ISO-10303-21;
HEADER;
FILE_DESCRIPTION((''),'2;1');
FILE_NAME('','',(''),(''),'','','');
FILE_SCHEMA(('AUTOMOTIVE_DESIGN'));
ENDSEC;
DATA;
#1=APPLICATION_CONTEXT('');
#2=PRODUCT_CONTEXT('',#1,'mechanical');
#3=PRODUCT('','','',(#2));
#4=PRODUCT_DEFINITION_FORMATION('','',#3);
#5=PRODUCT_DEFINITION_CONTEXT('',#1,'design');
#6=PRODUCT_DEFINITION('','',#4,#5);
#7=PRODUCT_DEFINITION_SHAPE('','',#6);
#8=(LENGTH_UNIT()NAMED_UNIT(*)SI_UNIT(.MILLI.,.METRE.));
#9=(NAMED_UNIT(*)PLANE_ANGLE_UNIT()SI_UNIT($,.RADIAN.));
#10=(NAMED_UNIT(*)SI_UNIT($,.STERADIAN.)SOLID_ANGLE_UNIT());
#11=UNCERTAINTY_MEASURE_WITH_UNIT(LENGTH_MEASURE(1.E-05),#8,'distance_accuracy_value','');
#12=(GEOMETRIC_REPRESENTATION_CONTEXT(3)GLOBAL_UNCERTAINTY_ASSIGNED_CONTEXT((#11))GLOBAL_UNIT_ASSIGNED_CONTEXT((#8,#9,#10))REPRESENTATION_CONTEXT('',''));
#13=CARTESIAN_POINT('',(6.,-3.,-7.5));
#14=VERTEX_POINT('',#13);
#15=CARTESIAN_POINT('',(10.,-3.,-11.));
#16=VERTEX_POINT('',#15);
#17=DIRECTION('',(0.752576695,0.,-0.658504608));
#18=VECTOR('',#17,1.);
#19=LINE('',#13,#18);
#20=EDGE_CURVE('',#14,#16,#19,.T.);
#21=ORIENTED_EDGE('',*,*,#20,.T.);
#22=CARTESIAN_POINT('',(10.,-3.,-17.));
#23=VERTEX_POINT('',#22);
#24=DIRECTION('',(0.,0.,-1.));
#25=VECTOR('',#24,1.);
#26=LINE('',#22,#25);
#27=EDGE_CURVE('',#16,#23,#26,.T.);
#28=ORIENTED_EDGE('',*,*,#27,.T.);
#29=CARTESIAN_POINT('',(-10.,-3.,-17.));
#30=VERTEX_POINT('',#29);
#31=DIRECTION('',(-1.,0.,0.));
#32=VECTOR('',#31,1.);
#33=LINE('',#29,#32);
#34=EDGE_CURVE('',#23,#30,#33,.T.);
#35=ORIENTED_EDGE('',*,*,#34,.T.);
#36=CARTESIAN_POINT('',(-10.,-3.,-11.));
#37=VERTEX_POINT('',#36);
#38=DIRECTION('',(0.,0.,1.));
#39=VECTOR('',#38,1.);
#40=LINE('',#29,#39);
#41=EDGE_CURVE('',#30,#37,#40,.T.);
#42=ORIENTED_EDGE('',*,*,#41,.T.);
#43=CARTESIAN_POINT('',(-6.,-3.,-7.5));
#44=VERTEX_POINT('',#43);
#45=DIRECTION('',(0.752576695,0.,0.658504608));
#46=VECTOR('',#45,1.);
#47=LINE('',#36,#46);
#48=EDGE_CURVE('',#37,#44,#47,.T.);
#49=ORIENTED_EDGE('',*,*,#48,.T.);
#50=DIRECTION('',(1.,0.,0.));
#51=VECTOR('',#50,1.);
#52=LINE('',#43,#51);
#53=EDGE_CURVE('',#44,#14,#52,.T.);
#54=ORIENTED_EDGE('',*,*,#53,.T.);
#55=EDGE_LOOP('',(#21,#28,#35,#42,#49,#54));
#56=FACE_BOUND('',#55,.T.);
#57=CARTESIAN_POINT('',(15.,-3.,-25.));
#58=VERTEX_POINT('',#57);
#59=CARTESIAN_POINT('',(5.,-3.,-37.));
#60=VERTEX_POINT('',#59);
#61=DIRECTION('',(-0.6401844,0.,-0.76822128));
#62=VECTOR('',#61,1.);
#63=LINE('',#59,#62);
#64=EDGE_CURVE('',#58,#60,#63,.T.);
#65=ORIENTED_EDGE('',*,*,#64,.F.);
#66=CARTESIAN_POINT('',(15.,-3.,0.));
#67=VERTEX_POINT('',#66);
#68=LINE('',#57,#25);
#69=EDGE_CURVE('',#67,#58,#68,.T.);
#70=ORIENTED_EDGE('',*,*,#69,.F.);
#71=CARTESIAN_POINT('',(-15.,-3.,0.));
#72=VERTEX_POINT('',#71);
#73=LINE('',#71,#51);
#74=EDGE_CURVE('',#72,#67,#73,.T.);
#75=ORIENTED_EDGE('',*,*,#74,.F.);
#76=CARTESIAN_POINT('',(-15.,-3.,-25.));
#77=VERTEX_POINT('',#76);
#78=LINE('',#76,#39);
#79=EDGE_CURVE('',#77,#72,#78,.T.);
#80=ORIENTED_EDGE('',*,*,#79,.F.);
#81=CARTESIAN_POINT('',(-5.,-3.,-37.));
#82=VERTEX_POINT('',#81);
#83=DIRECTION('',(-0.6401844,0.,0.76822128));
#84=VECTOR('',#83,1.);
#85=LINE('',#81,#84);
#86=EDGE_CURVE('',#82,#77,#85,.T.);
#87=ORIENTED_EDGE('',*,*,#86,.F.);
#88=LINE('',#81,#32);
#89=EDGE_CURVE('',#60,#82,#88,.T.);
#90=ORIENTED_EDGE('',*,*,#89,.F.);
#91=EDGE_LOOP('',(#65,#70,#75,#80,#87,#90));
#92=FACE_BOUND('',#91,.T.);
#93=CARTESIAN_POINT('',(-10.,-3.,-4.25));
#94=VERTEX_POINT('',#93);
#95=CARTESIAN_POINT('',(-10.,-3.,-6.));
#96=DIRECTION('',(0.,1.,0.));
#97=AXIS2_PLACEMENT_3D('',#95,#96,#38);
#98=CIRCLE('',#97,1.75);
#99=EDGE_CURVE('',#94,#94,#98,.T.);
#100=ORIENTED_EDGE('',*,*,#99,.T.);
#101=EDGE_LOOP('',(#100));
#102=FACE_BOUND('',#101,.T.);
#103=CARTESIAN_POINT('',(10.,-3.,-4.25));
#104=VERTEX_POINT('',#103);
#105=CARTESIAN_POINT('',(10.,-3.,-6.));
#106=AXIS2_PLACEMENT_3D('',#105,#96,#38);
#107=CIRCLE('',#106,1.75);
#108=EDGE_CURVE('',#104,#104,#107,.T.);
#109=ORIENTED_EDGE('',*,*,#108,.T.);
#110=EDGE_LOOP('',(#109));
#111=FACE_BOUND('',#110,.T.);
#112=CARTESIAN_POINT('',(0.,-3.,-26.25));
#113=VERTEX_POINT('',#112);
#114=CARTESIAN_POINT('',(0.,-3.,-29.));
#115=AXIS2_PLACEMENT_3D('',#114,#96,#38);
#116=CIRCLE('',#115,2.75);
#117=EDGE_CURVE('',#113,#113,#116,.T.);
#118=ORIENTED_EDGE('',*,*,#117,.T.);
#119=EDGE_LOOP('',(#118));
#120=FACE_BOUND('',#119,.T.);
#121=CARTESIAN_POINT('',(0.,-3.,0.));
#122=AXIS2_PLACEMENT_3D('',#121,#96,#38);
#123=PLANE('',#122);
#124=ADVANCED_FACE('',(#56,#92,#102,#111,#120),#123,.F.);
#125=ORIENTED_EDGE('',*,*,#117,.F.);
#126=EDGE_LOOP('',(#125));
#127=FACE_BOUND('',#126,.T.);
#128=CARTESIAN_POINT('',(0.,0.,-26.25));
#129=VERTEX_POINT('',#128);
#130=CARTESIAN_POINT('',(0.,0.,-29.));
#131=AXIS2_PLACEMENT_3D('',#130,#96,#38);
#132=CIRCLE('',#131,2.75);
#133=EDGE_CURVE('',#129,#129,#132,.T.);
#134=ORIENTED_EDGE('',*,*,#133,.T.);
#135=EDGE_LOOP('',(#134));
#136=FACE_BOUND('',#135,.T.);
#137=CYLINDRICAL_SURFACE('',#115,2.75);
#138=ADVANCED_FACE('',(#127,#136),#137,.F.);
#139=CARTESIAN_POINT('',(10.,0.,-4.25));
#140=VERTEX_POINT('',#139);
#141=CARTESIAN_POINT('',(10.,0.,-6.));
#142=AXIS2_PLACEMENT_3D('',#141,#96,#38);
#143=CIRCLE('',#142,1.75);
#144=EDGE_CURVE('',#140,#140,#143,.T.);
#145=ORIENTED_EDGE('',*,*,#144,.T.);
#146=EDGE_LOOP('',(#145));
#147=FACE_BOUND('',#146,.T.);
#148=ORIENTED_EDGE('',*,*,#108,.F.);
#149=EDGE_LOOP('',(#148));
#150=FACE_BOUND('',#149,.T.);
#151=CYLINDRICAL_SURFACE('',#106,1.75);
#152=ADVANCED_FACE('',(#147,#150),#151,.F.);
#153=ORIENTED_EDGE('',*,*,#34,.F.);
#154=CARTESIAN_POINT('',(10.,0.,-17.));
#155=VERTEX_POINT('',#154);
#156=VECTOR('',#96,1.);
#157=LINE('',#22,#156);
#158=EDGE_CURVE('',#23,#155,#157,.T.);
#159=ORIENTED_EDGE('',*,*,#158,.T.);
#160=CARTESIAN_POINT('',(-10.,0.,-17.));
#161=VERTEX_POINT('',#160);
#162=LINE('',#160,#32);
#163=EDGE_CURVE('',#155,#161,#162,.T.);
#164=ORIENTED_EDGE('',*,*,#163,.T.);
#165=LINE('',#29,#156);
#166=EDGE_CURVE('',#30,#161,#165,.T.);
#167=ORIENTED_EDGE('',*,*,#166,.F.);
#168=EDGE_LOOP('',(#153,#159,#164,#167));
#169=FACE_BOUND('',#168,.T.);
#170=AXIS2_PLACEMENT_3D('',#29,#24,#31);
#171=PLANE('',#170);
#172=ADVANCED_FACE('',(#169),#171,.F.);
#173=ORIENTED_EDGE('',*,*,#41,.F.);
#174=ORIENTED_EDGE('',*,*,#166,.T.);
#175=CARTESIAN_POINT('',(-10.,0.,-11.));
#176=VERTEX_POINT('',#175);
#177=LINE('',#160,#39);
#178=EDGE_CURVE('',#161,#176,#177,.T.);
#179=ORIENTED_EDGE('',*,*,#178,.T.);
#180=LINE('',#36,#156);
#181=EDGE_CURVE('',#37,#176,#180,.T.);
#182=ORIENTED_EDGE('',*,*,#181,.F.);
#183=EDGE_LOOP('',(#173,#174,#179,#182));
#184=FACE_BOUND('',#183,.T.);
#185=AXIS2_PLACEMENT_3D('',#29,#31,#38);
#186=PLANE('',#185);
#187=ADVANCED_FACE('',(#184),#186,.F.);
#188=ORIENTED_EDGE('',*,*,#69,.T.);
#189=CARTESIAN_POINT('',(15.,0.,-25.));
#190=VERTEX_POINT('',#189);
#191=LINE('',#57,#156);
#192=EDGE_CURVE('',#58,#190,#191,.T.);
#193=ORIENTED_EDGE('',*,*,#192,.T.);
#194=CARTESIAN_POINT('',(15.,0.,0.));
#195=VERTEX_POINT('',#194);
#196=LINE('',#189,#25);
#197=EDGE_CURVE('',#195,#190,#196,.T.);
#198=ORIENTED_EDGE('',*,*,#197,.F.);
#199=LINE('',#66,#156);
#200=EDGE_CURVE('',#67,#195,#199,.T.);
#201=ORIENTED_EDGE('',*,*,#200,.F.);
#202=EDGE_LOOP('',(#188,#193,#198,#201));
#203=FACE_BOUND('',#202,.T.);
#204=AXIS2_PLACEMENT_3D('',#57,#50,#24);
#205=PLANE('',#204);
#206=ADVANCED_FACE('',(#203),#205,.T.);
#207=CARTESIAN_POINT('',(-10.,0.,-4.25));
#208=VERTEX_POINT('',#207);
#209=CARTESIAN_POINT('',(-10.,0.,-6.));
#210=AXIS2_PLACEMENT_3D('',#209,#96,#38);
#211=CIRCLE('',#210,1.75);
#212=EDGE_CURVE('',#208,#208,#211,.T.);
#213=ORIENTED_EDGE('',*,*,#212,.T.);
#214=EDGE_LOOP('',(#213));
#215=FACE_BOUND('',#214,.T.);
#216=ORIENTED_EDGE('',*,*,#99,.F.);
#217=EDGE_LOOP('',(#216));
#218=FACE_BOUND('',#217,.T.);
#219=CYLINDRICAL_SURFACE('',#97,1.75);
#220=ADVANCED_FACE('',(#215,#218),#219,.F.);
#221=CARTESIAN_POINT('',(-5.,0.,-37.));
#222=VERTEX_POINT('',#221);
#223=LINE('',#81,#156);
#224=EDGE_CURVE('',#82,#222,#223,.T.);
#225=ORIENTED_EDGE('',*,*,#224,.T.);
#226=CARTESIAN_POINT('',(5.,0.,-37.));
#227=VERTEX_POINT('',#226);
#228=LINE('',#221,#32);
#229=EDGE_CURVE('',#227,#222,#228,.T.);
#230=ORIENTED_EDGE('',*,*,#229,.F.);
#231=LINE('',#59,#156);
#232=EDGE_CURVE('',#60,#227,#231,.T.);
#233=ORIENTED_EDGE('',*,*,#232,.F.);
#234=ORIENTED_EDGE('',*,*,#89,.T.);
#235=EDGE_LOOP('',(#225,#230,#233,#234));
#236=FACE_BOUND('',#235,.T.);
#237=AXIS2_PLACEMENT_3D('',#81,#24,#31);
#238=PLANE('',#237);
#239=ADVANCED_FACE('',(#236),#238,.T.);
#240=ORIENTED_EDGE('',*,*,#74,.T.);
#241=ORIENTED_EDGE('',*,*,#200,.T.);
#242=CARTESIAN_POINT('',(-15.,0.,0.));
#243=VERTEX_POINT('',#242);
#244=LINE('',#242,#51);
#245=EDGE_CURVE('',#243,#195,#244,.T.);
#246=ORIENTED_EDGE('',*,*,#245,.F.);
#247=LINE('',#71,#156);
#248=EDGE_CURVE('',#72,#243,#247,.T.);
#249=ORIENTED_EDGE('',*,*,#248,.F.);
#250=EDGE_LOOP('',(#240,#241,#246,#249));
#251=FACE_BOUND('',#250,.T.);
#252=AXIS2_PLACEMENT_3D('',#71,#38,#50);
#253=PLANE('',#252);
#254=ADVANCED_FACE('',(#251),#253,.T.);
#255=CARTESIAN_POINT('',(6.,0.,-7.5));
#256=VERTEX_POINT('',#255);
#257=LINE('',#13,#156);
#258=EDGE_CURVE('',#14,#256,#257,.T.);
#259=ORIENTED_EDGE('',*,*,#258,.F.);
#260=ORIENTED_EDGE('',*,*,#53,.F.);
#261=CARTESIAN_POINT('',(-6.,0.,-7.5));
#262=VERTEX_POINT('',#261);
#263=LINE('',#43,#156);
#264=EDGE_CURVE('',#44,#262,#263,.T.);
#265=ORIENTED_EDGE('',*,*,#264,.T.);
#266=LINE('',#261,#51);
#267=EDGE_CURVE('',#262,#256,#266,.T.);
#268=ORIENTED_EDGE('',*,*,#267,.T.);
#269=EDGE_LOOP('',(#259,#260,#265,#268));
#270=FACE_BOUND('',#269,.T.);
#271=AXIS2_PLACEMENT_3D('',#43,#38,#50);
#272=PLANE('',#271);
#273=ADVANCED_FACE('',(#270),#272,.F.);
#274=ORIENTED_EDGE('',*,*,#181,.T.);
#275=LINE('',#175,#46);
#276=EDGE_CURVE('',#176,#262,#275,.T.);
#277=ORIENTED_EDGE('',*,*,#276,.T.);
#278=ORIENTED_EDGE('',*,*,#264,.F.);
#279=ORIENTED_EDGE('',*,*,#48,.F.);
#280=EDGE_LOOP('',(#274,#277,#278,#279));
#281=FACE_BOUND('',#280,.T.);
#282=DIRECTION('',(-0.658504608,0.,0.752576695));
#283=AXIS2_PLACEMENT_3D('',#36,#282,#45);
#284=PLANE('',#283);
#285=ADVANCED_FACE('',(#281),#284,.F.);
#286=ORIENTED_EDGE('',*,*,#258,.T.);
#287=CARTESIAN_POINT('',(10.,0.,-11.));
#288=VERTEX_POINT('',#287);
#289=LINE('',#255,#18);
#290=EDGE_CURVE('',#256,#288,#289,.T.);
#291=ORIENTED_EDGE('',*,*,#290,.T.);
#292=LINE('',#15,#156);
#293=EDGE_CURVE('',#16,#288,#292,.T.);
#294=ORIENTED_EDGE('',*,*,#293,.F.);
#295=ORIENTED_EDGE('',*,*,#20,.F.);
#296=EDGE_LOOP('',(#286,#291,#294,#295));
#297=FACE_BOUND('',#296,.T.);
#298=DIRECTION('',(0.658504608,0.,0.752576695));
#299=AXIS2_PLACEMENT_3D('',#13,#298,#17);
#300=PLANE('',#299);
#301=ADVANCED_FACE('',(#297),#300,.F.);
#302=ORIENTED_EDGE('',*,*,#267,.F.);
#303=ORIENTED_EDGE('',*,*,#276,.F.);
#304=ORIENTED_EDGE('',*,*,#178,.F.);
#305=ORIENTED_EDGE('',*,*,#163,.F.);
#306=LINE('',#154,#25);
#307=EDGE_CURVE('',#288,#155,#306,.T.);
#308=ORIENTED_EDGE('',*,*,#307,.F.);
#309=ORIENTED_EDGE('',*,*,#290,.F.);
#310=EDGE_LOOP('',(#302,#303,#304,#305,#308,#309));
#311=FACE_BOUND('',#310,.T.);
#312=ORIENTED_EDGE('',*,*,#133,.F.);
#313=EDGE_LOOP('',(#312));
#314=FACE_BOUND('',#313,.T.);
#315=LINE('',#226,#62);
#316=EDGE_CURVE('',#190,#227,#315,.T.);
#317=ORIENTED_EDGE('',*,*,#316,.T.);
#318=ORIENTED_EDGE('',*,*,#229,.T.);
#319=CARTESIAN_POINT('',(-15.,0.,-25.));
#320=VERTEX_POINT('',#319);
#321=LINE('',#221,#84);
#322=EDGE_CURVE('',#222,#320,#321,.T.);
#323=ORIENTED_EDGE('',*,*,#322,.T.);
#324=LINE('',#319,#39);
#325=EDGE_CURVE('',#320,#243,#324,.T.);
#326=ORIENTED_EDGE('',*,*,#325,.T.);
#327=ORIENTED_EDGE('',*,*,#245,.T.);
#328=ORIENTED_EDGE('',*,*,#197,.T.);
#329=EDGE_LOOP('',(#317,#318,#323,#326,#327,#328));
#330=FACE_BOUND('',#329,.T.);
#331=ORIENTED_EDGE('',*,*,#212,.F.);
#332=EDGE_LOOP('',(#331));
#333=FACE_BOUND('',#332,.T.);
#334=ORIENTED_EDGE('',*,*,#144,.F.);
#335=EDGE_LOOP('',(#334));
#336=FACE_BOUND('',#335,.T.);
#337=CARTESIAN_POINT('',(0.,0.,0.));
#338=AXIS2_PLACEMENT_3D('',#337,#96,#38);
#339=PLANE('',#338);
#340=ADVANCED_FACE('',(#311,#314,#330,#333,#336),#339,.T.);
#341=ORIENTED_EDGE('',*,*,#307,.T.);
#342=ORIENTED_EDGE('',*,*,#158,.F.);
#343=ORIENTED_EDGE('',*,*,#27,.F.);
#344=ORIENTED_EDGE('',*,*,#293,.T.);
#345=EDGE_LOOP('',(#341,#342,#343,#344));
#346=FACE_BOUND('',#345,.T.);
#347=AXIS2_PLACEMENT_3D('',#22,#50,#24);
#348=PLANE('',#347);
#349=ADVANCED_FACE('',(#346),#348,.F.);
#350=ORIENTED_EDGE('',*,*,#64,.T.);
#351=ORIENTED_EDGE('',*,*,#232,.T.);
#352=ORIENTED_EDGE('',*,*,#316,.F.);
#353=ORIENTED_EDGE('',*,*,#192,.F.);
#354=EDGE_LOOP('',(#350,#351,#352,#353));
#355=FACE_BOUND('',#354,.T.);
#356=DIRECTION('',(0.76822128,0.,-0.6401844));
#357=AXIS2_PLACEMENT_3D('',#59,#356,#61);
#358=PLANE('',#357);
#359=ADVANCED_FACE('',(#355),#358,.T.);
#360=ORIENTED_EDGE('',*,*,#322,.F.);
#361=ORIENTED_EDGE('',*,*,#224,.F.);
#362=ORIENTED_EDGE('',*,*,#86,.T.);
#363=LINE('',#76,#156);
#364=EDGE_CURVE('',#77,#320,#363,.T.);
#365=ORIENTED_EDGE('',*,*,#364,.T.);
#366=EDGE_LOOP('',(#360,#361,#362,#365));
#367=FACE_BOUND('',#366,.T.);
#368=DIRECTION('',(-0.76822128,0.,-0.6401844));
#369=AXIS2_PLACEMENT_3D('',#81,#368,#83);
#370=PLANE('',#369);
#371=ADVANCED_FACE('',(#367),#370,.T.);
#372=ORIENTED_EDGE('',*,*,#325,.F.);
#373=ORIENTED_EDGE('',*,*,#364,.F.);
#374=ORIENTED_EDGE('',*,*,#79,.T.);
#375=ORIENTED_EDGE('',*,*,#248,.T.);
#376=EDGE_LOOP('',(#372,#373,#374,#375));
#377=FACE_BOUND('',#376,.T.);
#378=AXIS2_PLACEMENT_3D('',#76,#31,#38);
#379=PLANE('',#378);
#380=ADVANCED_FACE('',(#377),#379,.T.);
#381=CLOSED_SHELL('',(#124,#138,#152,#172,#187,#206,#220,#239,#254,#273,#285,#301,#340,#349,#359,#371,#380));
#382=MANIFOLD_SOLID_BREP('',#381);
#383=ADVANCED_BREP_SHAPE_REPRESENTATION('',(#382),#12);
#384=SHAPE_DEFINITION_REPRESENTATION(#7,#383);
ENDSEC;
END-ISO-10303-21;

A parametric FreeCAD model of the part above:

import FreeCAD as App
import Part
import Sketcher

V = App.Vector

doc = App.newDocument("Part")
body = doc.addObject("PartDesign::Body", "Body")

# Sketch on XZ plane
sketch1 = doc.addObject("Sketcher::SketchObject", "Sketch")
body.addObject(sketch1)
sketch1.AttachmentSupport = (doc.XZ_Plane, [""])
sketch1.MapMode = "FlatFace"
sketch1.addGeometry(Part.LineSegment(V(-15, -25, 0), V(-15, 0, 0)), False)
sketch1.addGeometry(Part.LineSegment(V(-15, 0, 0), V(15, 0, 0)), False)
sketch1.addGeometry(Part.LineSegment(V(15, 0, 0), V(15, -25, 0)), False)
sketch1.addGeometry(Part.LineSegment(V(15, -25, 0), V(5, -37, 0)), False)
sketch1.addGeometry(Part.LineSegment(V(5, -37, 0), V(-5, -37, 0)), False)
sketch1.addGeometry(Part.LineSegment(V(-5, -37, 0), V(-15, -25, 0)), False)
sketch1.addGeometry(Part.Circle(V(-10, -6, 0), V(0, 0, 1), 1.75), False)
sketch1.addGeometry(Part.Circle(V(10, -6, 0), V(0, 0, 1), 1.75), False)
sketch1.addGeometry(Part.LineSegment(V(-10, -11, 0), V(-10, -17, 0)), False)
sketch1.addGeometry(Part.LineSegment(V(-10, -17, 0), V(10, -17, 0)), False)
sketch1.addGeometry(Part.LineSegment(V(10, -17, 0), V(10, -11, 0)), False)
sketch1.addGeometry(Part.LineSegment(V(10, -11, 0), V(6, -7.5, 0)), False)
sketch1.addGeometry(Part.LineSegment(V(6, -7.5, 0), V(-6, -7.5, 0)), False)
sketch1.addGeometry(Part.LineSegment(V(-6, -7.5, 0), V(-10, -11, 0)), False)
sketch1.addGeometry(Part.Circle(V(0, -29, 0), V(0, 0, 1), 2.75), False)
sketch1.addConstraint(Sketcher.Constraint("Coincident", 0, 2, 1, 1))
sketch1.addConstraint(Sketcher.Constraint("Coincident", 1, 2, 2, 1))
sketch1.addConstraint(Sketcher.Constraint("Coincident", 2, 2, 3, 1))
sketch1.addConstraint(Sketcher.Constraint("Coincident", 3, 2, 4, 1))
sketch1.addConstraint(Sketcher.Constraint("Coincident", 4, 2, 5, 1))
sketch1.addConstraint(Sketcher.Constraint("Coincident", 5, 2, 0, 1))
sketch1.addConstraint(Sketcher.Constraint("Coincident", 8, 2, 9, 1))
sketch1.addConstraint(Sketcher.Constraint("Coincident", 9, 2, 10, 1))
sketch1.addConstraint(Sketcher.Constraint("Coincident", 10, 2, 11, 1))
sketch1.addConstraint(Sketcher.Constraint("Coincident", 11, 2, 12, 1))
sketch1.addConstraint(Sketcher.Constraint("Coincident", 12, 2, 13, 1))
sketch1.addConstraint(Sketcher.Constraint("Coincident", 13, 2, 8, 1))
sketch1.addConstraint(Sketcher.Constraint("Vertical", 0))
sketch1.addConstraint(Sketcher.Constraint("Horizontal", 1))
sketch1.addConstraint(Sketcher.Constraint("Vertical", 2))
sketch1.addConstraint(Sketcher.Constraint("Horizontal", 4))
sketch1.addConstraint(Sketcher.Constraint("Vertical", 8))
sketch1.addConstraint(Sketcher.Constraint("Horizontal", 9))
sketch1.addConstraint(Sketcher.Constraint("Vertical", 10))
sketch1.addConstraint(Sketcher.Constraint("Horizontal", 12))
sketch1.addConstraint(Sketcher.Constraint("Equal", 6, 7))
sketch1.addConstraint(Sketcher.Constraint("Symmetric", 0, 2, 1, 2, -1, 1))
sketch1.addConstraint(Sketcher.Constraint("Symmetric", 6, 3, 7, 3, -2))
sketch1.addConstraint(Sketcher.Constraint("Symmetric", 10, 2, 13, 2, -2))
sketch1.addConstraint(Sketcher.Constraint("PointOnObject", 14, 3, -2))
sketch1.addConstraint(Sketcher.Constraint("Horizontal", 2, 2, 5, 2))
sketch1.addConstraint(Sketcher.Constraint("Vertical", 6, 3, 8, 2))
sketch1.addConstraint(Sketcher.Constraint("Equal", 3, 5))
sketch1.addConstraint(Sketcher.Constraint("Equal", 11, 13))
sketch1.addConstraint(Sketcher.Constraint("Diameter", 6, 3.5))
sketch1.addConstraint(Sketcher.Constraint("Diameter", 14, 5.5))
sketch1.addConstraint(Sketcher.Constraint("DistanceX", 1, 1, 1, 2, 30.0))
sketch1.addConstraint(Sketcher.Constraint("DistanceX", 4, 2, 4, 1, 10.0))
sketch1.addConstraint(Sketcher.Constraint("DistanceX", 9, 1, 9, 2, 20.0))
sketch1.addConstraint(Sketcher.Constraint("DistanceX", 12, 2, 12, 1, 12.0))
sketch1.addConstraint(Sketcher.Constraint("DistanceY", 0, 1, 0, 2, 25.0))
sketch1.addConstraint(Sketcher.Constraint("DistanceY", 8, 2, 8, 1, 6.0))
sketch1.addConstraint(Sketcher.Constraint("DistanceY", 6, 3, -1, 1, 6.0))
sketch1.addConstraint(Sketcher.Constraint("DistanceY", 14, 3, -1, 1, 29.0))
sketch1.addConstraint(Sketcher.Constraint("DistanceY", 3, 2, -1, 1, 37.0))
sketch1.addConstraint(Sketcher.Constraint("DistanceY", 8, 2, -1, 1, 17.0))
sketch1.addConstraint(Sketcher.Constraint("DistanceY", 11, 2, -1, 1, 7.5))
pad1 = doc.addObject("PartDesign::Pad", "Pad")
body.addObject(pad1)
pad1.Profile = sketch1
pad1.Length = 3

doc.recompute()
